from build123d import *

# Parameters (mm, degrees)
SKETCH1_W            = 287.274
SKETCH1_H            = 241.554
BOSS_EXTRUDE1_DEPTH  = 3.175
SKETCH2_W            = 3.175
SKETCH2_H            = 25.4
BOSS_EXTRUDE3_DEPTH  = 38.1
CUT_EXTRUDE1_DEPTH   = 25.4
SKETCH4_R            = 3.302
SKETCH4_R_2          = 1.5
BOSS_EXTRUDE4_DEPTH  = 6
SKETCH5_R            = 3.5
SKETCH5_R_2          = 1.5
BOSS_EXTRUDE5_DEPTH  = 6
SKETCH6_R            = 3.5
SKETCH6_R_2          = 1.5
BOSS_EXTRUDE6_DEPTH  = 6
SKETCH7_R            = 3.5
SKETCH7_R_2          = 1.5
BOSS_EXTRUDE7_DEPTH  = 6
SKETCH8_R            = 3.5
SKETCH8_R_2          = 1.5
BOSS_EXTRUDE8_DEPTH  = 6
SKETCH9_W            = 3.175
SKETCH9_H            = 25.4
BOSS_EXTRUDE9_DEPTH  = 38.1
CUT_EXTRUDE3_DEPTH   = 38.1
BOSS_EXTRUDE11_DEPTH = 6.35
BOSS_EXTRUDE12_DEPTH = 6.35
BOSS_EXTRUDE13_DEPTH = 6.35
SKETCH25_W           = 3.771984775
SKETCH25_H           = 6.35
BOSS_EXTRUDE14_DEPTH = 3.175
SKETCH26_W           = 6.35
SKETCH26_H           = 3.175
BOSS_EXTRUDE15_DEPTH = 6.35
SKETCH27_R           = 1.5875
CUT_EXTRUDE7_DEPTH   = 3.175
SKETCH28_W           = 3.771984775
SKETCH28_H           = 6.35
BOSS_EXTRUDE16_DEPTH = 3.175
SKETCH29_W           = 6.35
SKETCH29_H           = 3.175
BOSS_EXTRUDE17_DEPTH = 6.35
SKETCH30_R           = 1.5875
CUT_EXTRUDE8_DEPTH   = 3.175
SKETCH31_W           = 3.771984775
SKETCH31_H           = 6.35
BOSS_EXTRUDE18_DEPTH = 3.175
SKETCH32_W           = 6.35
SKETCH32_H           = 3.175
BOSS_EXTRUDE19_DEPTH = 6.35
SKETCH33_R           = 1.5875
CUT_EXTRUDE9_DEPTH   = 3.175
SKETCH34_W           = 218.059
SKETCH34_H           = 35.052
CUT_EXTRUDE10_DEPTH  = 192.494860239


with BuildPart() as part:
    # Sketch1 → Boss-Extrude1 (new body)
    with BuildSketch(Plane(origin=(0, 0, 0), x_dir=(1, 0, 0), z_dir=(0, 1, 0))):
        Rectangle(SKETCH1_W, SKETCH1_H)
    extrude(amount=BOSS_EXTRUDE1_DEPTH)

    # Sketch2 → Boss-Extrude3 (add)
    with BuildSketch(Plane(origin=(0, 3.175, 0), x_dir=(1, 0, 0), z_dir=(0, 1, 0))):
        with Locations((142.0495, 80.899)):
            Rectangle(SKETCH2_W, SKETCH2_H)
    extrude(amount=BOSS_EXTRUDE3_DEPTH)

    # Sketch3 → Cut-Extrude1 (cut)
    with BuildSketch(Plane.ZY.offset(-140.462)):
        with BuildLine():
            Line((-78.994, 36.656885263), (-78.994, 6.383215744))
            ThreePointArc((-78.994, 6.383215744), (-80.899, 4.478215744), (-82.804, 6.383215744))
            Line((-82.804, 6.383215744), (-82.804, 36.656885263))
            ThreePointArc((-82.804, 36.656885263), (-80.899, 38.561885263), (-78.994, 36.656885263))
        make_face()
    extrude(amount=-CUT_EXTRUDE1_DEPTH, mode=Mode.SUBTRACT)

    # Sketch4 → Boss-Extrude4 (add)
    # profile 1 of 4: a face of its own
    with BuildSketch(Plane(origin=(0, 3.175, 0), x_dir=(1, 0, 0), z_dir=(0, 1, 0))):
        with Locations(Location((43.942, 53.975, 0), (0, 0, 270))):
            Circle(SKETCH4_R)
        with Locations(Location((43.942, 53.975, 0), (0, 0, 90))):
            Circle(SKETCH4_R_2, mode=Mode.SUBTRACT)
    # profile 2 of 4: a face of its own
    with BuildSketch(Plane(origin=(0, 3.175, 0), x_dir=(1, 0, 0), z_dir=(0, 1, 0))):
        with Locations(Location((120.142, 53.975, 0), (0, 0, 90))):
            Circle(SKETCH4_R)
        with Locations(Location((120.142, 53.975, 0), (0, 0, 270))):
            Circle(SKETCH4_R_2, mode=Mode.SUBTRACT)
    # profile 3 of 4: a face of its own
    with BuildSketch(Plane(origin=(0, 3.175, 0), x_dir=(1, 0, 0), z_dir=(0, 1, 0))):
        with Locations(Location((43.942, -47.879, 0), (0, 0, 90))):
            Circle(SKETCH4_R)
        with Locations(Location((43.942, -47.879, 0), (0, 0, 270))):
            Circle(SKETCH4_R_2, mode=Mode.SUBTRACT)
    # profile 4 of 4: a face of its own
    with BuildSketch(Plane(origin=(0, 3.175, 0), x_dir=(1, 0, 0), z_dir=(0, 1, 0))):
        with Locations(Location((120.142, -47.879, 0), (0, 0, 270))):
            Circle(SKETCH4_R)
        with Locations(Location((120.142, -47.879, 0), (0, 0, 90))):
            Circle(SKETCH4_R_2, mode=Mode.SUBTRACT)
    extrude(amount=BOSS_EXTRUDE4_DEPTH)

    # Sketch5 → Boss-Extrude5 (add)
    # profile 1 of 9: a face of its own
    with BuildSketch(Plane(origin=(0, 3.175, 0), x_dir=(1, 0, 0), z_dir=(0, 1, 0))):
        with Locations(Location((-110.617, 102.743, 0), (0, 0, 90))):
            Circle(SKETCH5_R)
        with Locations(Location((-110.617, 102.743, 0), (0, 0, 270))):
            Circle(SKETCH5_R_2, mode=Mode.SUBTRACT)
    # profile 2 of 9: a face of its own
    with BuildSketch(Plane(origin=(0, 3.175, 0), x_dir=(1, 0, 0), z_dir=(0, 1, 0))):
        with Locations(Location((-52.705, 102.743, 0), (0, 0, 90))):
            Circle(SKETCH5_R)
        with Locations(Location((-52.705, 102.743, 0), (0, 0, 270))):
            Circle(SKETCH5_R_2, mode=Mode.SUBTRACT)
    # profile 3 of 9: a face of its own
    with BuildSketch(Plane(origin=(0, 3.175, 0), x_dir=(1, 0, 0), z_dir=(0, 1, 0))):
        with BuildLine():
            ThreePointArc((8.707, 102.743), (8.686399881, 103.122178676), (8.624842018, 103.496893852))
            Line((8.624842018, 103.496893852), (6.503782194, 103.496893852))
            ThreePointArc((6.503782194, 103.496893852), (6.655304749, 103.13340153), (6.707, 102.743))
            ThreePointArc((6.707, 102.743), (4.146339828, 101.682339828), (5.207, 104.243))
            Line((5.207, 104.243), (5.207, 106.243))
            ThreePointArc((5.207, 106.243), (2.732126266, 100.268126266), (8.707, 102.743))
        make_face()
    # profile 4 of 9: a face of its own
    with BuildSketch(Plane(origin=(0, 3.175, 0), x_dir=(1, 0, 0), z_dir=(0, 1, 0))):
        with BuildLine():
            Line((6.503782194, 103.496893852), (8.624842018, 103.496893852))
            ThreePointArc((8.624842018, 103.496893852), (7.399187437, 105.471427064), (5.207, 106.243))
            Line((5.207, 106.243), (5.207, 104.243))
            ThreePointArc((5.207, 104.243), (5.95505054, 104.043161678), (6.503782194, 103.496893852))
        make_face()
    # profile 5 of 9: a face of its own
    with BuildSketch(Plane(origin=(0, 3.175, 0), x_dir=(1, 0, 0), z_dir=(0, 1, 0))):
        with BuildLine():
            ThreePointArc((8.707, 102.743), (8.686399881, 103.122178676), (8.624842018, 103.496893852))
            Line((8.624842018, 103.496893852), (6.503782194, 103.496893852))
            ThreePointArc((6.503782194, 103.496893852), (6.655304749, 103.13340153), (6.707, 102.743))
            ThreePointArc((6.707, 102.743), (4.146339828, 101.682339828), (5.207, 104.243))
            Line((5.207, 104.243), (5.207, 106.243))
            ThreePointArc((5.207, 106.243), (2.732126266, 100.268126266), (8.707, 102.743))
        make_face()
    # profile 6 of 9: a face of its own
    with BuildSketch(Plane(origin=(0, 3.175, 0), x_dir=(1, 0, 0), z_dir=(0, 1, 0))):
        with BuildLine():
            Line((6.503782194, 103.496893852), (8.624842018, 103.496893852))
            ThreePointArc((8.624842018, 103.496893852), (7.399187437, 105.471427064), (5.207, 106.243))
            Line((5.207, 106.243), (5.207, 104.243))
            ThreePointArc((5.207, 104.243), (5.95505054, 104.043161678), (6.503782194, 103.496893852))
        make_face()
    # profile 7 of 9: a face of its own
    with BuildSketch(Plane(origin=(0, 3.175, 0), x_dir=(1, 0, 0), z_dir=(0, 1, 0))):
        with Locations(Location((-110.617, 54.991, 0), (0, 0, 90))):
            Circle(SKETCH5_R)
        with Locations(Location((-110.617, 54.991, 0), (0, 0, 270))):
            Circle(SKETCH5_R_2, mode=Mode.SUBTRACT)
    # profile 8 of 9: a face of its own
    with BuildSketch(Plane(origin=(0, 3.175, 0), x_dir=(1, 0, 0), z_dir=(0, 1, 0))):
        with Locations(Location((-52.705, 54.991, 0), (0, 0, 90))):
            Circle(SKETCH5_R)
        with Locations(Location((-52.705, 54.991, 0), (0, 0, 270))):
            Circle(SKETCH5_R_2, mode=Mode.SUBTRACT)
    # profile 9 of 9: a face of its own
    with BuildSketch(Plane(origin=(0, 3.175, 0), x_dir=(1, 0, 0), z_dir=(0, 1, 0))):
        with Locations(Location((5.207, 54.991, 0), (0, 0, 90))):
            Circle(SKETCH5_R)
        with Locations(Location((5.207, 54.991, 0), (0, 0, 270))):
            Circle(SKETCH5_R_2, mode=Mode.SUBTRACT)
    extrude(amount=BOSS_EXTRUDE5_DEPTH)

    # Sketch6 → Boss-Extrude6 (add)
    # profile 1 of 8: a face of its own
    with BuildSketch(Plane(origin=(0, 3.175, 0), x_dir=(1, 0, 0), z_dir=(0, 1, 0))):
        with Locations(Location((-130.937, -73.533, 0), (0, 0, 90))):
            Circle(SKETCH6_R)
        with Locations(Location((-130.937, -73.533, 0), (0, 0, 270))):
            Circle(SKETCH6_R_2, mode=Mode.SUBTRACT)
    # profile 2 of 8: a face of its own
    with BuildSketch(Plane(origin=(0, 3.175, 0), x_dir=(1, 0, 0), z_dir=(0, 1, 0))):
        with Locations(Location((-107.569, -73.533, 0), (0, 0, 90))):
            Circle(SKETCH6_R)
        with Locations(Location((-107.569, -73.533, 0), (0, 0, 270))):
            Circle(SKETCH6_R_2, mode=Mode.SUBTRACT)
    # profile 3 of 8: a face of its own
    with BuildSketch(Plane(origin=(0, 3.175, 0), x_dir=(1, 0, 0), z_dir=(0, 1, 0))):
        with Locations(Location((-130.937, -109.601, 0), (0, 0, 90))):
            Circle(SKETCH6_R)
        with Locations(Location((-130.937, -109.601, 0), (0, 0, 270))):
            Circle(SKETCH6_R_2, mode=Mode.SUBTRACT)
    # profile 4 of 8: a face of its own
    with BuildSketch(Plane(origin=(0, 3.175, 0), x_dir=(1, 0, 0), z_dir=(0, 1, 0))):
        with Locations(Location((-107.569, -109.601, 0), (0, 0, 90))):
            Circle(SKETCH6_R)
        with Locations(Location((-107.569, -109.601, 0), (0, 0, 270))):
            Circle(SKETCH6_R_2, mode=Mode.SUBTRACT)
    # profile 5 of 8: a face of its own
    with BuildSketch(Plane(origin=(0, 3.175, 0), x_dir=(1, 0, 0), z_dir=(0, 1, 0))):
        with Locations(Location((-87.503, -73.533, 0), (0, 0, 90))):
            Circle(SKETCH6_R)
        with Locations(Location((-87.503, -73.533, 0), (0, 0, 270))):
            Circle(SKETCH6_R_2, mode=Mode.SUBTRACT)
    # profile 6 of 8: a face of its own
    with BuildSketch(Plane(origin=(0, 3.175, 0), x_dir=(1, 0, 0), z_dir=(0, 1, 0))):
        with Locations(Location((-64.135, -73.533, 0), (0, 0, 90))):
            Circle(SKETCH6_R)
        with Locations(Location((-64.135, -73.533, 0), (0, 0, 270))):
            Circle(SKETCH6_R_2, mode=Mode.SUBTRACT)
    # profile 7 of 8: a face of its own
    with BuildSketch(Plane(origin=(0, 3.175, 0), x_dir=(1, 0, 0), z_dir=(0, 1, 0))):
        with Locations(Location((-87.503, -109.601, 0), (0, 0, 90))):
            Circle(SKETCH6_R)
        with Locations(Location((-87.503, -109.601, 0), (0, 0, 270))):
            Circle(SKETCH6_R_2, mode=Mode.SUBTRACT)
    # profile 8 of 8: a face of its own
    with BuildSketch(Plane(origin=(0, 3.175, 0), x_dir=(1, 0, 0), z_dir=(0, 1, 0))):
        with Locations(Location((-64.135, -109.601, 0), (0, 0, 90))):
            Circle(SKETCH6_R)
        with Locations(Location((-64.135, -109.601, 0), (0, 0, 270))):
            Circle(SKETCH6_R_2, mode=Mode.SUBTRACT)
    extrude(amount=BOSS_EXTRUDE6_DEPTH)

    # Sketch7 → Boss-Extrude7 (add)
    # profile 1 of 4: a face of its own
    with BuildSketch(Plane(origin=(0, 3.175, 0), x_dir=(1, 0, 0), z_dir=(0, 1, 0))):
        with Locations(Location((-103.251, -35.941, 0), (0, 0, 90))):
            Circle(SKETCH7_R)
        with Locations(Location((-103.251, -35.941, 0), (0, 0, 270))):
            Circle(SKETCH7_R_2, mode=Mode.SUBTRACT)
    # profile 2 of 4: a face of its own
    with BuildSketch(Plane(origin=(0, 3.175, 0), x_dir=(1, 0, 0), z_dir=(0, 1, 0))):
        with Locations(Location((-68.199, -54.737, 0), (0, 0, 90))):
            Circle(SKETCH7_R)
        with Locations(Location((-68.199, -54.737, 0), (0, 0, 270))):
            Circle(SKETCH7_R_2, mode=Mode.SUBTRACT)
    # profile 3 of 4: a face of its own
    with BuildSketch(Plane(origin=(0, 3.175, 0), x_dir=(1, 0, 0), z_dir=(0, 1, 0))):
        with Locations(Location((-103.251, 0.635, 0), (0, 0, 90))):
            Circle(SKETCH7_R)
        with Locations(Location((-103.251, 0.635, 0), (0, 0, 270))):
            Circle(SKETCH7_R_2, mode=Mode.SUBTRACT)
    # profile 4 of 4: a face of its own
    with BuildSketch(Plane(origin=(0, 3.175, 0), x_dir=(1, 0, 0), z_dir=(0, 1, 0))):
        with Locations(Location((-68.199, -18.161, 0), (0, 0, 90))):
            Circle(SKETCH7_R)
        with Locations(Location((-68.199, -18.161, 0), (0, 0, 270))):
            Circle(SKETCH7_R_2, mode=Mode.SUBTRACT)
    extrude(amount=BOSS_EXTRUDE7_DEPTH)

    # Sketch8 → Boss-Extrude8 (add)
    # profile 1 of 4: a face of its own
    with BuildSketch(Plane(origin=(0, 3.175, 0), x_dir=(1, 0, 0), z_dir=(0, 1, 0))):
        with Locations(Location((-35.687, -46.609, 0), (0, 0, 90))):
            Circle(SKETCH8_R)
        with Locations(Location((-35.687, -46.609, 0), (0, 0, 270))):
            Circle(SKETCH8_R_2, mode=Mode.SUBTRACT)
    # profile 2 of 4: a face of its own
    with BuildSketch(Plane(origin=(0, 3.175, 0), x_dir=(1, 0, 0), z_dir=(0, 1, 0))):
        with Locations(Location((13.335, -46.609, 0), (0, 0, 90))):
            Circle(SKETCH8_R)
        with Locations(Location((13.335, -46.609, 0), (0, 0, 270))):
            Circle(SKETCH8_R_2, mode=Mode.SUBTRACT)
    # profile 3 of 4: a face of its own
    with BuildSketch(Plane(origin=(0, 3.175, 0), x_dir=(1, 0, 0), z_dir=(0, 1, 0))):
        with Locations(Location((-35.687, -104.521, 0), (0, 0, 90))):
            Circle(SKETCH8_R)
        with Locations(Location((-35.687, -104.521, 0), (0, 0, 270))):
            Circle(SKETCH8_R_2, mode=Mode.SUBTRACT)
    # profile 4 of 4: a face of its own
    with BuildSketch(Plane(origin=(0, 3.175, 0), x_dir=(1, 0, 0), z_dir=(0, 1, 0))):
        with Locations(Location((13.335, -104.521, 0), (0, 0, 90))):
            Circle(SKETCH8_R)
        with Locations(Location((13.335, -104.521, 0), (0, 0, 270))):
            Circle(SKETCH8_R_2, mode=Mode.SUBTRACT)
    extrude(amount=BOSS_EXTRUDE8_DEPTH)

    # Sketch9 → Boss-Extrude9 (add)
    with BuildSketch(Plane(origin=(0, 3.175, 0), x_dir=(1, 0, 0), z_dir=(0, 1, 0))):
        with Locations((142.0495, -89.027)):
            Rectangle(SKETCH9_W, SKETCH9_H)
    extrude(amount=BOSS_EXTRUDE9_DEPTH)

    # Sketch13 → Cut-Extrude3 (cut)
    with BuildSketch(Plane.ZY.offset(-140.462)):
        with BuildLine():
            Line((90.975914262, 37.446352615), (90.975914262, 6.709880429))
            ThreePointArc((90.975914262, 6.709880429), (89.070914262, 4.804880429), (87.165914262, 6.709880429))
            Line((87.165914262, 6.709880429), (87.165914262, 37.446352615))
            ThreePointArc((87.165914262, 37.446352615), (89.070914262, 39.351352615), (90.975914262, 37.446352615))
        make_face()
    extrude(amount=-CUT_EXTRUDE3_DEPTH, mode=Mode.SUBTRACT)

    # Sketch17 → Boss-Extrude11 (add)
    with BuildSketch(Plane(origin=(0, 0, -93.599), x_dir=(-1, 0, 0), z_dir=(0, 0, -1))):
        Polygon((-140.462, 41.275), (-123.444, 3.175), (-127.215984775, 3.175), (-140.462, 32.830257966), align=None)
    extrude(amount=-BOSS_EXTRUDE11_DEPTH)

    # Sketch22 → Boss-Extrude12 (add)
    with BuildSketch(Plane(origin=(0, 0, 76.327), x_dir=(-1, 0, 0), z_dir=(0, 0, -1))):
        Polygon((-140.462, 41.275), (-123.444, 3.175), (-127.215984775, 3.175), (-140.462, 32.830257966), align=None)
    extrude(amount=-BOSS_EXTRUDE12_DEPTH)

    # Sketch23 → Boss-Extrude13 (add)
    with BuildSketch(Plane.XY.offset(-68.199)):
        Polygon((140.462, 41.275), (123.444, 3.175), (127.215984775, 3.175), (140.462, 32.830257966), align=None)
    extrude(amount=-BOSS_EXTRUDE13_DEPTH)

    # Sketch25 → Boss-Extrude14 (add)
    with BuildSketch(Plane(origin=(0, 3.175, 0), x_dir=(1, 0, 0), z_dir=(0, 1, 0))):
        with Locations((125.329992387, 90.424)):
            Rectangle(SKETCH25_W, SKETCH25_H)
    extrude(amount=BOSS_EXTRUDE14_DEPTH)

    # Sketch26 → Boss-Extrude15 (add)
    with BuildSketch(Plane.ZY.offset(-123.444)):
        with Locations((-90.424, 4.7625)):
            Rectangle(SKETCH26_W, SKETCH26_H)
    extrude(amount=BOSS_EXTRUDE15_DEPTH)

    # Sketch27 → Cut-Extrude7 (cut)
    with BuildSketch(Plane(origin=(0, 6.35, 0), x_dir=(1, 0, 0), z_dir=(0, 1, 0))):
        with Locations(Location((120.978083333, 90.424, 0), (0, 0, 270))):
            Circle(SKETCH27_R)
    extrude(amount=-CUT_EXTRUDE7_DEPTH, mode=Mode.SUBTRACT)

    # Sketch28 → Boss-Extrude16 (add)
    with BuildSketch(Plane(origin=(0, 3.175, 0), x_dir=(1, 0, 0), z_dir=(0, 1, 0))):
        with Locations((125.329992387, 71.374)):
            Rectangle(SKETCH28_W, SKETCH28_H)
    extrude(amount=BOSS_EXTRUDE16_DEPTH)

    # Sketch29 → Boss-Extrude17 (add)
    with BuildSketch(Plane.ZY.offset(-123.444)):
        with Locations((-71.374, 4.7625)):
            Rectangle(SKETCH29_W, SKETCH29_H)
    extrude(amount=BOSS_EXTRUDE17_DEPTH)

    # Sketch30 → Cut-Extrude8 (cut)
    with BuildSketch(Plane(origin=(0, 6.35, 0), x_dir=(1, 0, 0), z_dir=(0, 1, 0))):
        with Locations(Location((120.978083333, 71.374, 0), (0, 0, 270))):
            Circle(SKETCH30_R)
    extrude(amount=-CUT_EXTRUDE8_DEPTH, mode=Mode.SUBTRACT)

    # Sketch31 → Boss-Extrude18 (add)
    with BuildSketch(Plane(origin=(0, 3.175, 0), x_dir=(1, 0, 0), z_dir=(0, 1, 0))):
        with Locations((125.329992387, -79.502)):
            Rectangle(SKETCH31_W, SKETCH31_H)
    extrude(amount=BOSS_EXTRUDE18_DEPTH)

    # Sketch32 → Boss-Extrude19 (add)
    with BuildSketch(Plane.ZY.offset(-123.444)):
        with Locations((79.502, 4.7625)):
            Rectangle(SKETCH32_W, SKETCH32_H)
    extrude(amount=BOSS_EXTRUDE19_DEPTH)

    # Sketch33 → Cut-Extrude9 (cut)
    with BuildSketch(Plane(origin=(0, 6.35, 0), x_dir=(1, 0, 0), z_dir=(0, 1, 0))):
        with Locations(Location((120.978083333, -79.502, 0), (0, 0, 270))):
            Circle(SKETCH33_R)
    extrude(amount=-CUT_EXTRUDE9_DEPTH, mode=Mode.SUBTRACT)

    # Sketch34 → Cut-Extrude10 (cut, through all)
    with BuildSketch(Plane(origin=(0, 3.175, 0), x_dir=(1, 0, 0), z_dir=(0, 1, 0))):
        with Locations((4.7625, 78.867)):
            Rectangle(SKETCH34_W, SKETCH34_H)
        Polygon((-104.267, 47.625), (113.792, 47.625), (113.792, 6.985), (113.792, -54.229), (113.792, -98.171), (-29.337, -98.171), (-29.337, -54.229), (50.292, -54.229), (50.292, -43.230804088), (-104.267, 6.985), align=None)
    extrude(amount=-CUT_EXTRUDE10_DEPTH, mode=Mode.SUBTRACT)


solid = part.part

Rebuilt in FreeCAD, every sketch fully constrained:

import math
import FreeCAD as App
import Part
import Sketcher

V = App.Vector
Q = App.Units.Quantity

doc = App.newDocument("Part")
body = doc.addObject("PartDesign::Body", "Body")

# Sketch on XZ plane
sketch1 = body.newObject("Sketcher::SketchObject", "Sketch")
sketch1.AttachmentSupport = (doc.getObject("XZ_Plane"), [""])
sketch1.MapMode = "FlatFace"
sketch1.addGeometry([
    Part.LineSegment(V(-144, -121, 0), V(-144, 121, 0)),
    Part.LineSegment(V(-144, 121, 0), V(144, 121, 0)),
    Part.LineSegment(V(144, 121, 0), V(144, -121, 0)),
    Part.LineSegment(V(144, -121, 0), V(-144, -121, 0)),
], False)
sketch1.addConstraint([
    Sketcher.Constraint("Coincident", 0, 2, 1, 1),
    Sketcher.Constraint("Coincident", 1, 2, 2, 1),
    Sketcher.Constraint("Coincident", 2, 2, 3, 1),
    Sketcher.Constraint("Coincident", 3, 2, 0, 1),
    Sketcher.Constraint("Vertical", 0),
    Sketcher.Constraint("Horizontal", 1),
    Sketcher.Constraint("Vertical", 2),
    Sketcher.Constraint("Horizontal", 3),
    Sketcher.Constraint("Symmetric", 0, 2, 2, 2, -1, 1),
    Sketcher.Constraint("DistanceX", 1, 1, 1, 2, Q("11.31 in")),
    Sketcher.Constraint("DistanceY", 0, 1, 0, 2, Q("9.51 in")),
])
pad1 = body.newObject("PartDesign::Pad", "Pad")
pad1.Profile = sketch1
pad1.Length = Q("0.125 in")
pad1.Reversed = True

# Sketch on XZ plane
sketch2 = body.newObject("Sketcher::SketchObject", "Sketch001")
sketch2.AttachmentSupport = (doc.getObject("XZ_Plane"), [""])
sketch2.MapMode = "FlatFace"
sketch2.AttachmentOffset = App.Placement(V(0, 0, -0.125 * 25.4), App.Rotation())
sketch2.addGeometry([
    Part.LineSegment(V(140.5, -93.6, 0), V(140.5, -68.2, 0)),
    Part.LineSegment(V(140.5, -68.2, 0), V(143.6, -68.2, 0)),
    Part.LineSegment(V(143.6, -68.2, 0), V(143.6, -93.6, 0)),
    Part.LineSegment(V(143.6, -93.6, 0), V(140.5, -93.6, 0)),
], False)
sketch2.addConstraint([
    Sketcher.Constraint("Coincident", 0, 2, 1, 1),
    Sketcher.Constraint("Coincident", 1, 2, 2, 1),
    Sketcher.Constraint("Coincident", 2, 2, 3, 1),
    Sketcher.Constraint("Coincident", 3, 2, 0, 1),
    Sketcher.Constraint("Vertical", 0),
    Sketcher.Constraint("Horizontal", 1),
    Sketcher.Constraint("Vertical", 2),
    Sketcher.Constraint("Horizontal", 3),
    Sketcher.Constraint("DistanceY", 0, 1, 0, 2, Q("1 in")),
    Sketcher.Constraint("DistanceX", 1, 1, 1, 2, Q("0.125 in")),
    Sketcher.Constraint("DistanceX", -1, 1, 0, 2, Q("5.53 in")),
    Sketcher.Constraint("DistanceY", 0, 2, -1, 1, Q("2.685 in")),
])
pad2 = body.newObject("PartDesign::Pad", "Pad001")
pad2.Profile = sketch2
pad2.Length = Q("1.5 in")
pad2.Reversed = True

# Sketch on YZ plane
sketch3 = body.newObject("Sketcher::SketchObject", "Sketch002")
sketch3.AttachmentSupport = (doc.getObject("YZ_Plane"), [""])
sketch3.MapMode = "FlatFace"
sketch3.AttachmentOffset = App.Placement(V(0, 0, 5.53 * 25.4), App.Rotation())
sketch3.addGeometry([
    Part.LineSegment(V(6.4, -79, 0), V(36.7, -79, 0)),
    Part.ArcOfCircle(Part.Circle(V(36.7, -80.9, 0), V(0, 0, 1), 1.9), math.radians(-90), math.radians(90)),
    Part.LineSegment(V(36.7, -82.8, 0), V(6.4, -82.8, 0)),
    Part.ArcOfCircle(Part.Circle(V(6.4, -80.9, 0), V(0, 0, 1), 1.9), math.radians(90), math.radians(270)),
], False)
sketch3.addConstraint([
    Sketcher.Constraint("Tangent", 0, 2, 1, 2),
    Sketcher.Constraint("Tangent", 1, 1, 2, 1),
    Sketcher.Constraint("Tangent", 2, 2, 3, 2),
    Sketcher.Constraint("Tangent", 3, 1, 0, 1),
    Sketcher.Constraint("Horizontal", 0),
    Sketcher.Constraint("Horizontal", 2),
    Sketcher.Constraint("Radius", 1, Q("0.075 in")),
    Sketcher.Constraint("DistanceY", 0, 2, -1, 1, Q("3.11 in")),
    Sketcher.Constraint("DistanceX", 0, 1, 0, 2, 30.27367),
    Sketcher.Constraint("DistanceX", -1, 1, 1, 3, 36.656885),
])
pocket1 = body.newObject("PartDesign::Pocket", "Pocket")
pocket1.Profile = sketch3
pocket1.Length = Q("1 in")
pocket1.Reversed = True

# Sketch on XZ plane
sketch4 = body.newObject("Sketcher::SketchObject", "Sketch003")
sketch4.AttachmentSupport = (doc.getObject("XZ_Plane"), [""])
sketch4.MapMode = "FlatFace"
sketch4.AttachmentOffset = App.Placement(V(0, 0, -0.125 * 25.4), App.Rotation())
sketch4.addGeometry([
    Part.Circle(V(43.9, -54, 0), V(0, 0, 1), 3.3),  # 0
    Part.Circle(V(43.9, -54, 0), V(0, 0, 1), 1.5),  # 1
    Part.Circle(V(120.1, -54, 0), V(0, 0, 1), 3.3),  # 2
    Part.Circle(V(120.1, -54, 0), V(0, 0, 1), 1.5),  # 3
    Part.Circle(V(43.9, 47.9, 0), V(0, 0, 1), 3.3),  # 4
    Part.Circle(V(43.9, 47.9, 0), V(0, 0, 1), 1.5),  # 5
    Part.Circle(V(120.1, 47.9, 0), V(0, 0, 1), 3.3),  # 6
    Part.Circle(V(120.1, 47.9, 0), V(0, 0, 1), 1.5),  # 7
], False)
sketch4.addConstraint([
    Sketcher.Constraint("Coincident", 1, 3, 0, 3),
    Sketcher.Constraint("Coincident", 3, 3, 2, 3),
    Sketcher.Constraint("Coincident", 5, 3, 4, 3),
    Sketcher.Constraint("Coincident", 7, 3, 6, 3),
    Sketcher.Constraint("Equal", 0, 2),
    Sketcher.Constraint("Equal", 1, 3),
    Sketcher.Constraint("Equal", 2, 4),
    Sketcher.Constraint("Equal", 3, 5),
    Sketcher.Constraint("Equal", 4, 6),
    Sketcher.Constraint("Equal", 5, 7),
    Sketcher.Constraint("Horizontal", 1, 3, 2, 3),
    Sketcher.Constraint("Horizontal", 5, 3, 6, 3),
    Sketcher.Constraint("Vertical", 1, 3, 4, 3),
    Sketcher.Constraint("Vertical", 3, 3, 6, 3),
    Sketcher.Constraint("Diameter", 0, Q("0.26 in")),
    Sketcher.Constraint("DistanceX", 0, 3, 2, 3, Q("3 in")),
    Sketcher.Constraint("Diameter", 1, 3.0),
    Sketcher.Constraint("DistanceX", -1, 1, 0, 3, Q("1.73 in")),
    Sketcher.Constraint("DistanceY", 0, 3, 4, 3, Q("4.01 in")),
    Sketcher.Constraint("DistanceY", 0, 3, -1, 1, Q("2.125 in")),
])
pad3 = body.newObject("PartDesign::Pad", "Pad002")
pad3.Profile = sketch4
pad3.Length = 6
pad3.Reversed = True

# Sketch on XZ plane
sketch5 = body.newObject("Sketcher::SketchObject", "Sketch004")
sketch5.AttachmentSupport = (doc.getObject("XZ_Plane"), [""])
sketch5.MapMode = "FlatFace"
sketch5.AttachmentOffset = App.Placement(V(0, 0, -0.125 * 25.4), App.Rotation())
sketch5.addGeometry([
    Part.Circle(V(-110.6, -102.7, 0), V(0, 0, 1), 3.5),  # 0
    Part.Circle(V(-110.6, -102.7, 0), V(0, 0, 1), 1.5),  # 1
    Part.Circle(V(-52.7, -102.7, 0), V(0, 0, 1), 3.5),  # 2
    Part.Circle(V(-52.7, -102.7, 0), V(0, 0, 1), 1.5),  # 3
    Part.ArcOfCircle(Part.Circle(V(5.2, -102.7, 0), V(0, 0, 1), 3.5), math.radians(-12.44), math.radians(0)),  # 4
    Part.ArcOfCircle(Part.Circle(V(5.2, -102.7, 0), V(0, 0, 1), 3.5), math.radians(-90), math.radians(-12)),  # 5
    Part.ArcOfCircle(Part.Circle(V(5.2, -102.7, 0), V(0, 0, 1), 3.5), math.radians(0), math.radians(270)),  # 6
    Part.ArcOfCircle(Part.Circle(V(5.2, -102.7, 0), V(0, 0, 1), 1.5), math.radians(-30), math.radians(0)),  # 7
    Part.ArcOfCircle(Part.Circle(V(5.2, -102.7, 0), V(0, 0, 1), 1.5), math.radians(0), math.radians(270)),  # 8
    Part.ArcOfCircle(Part.Circle(V(5.2, -102.7, 0), V(0, 0, 1), 1.5), math.radians(-90), math.radians(-30)),  # 9
    Part.Circle(V(-110.6, -55, 0), V(0, 0, 1), 3.5),  # 10
    Part.Circle(V(-110.6, -55, 0), V(0, 0, 1), 1.5),  # 11
    Part.Circle(V(-52.7, -55, 0), V(0, 0, 1), 3.5),  # 12
    Part.Circle(V(-52.7, -55, 0), V(0, 0, 1), 1.5),  # 13
    Part.Circle(V(5.2, -55, 0), V(0, 0, 1), 3.5),  # 14
    Part.Circle(V(5.2, -55, 0), V(0, 0, 1), 1.5),  # 15
], False)
sketch5.addConstraint([
    Sketcher.Constraint("Tangent", 4, 1, 5, 2),
    Sketcher.Constraint("Tangent", 5, 1, 6, 2),
    Sketcher.Constraint("Tangent", 6, 1, 4, 2),
    Sketcher.Constraint("Tangent", 7, 2, 8, 1),
    Sketcher.Constraint("Tangent", 8, 2, 9, 1),
    Sketcher.Constraint("Tangent", 9, 2, 7, 1),
    Sketcher.Constraint("Coincident", 1, 3, 0, 3),
    Sketcher.Constraint("Coincident", 3, 3, 2, 3),
    Sketcher.Constraint("Coincident", 7, 3, 4, 3),
    Sketcher.Constraint("Coincident", 11, 3, 10, 3),
    Sketcher.Constraint("Coincident", 13, 3, 12, 3),
    Sketcher.Constraint("Coincident", 15, 3, 14, 3),
    Sketcher.Constraint("Equal", 0, 2),
    Sketcher.Constraint("Equal", 1, 3),
    Sketcher.Constraint("Equal", 2, 4),
    Sketcher.Constraint("Equal", 3, 7),
    Sketcher.Constraint("Equal", 6, 10),
    Sketcher.Constraint("Equal", 9, 11),
    Sketcher.Constraint("Equal", 10, 12),
    Sketcher.Constraint("Equal", 11, 13),
    Sketcher.Constraint("Equal", 12, 14),
    Sketcher.Constraint("Equal", 13, 15),
    Sketcher.Constraint("Horizontal", 1, 3, 2, 3),
    Sketcher.Constraint("Horizontal", 3, 3, 4, 3),
    Sketcher.Constraint("Horizontal", 11, 3, 12, 3),
    Sketcher.Constraint("Horizontal", 13, 3, 14, 3),
    Sketcher.Constraint("Horizontal", 9, 3, 6, 1),
    Sketcher.Constraint("Horizontal", 6, 1, 7, 2),
    Sketcher.Constraint("Horizontal", 4, 1, 9, 2),
    Sketcher.Constraint("Vertical", 1, 3, 10, 3),
    Sketcher.Constraint("Vertical", 3, 3, 12, 3),
    Sketcher.Constraint("Vertical", 9, 3, 14, 3),
    Sketcher.Constraint("Vertical", 15, 3, 5, 1),
    Sketcher.Constraint("Vertical", 5, 1, 8, 2),
    Sketcher.Constraint("Diameter", 0, 7.0),
    Sketcher.Constraint("Diameter", 1, 3.0),
    Sketcher.Constraint("DistanceX", 0, 3, 2, 3, Q("2.28 in")),
    Sketcher.Constraint("DistanceX", 2, 3, 4, 3, Q("2.28 in")),
    Sketcher.Constraint("DistanceY", 0, 3, 10, 3, Q("1.88 in")),
    Sketcher.Constraint("DistanceX", 0, 3, -1, 1, Q("4.355 in")),
    Sketcher.Constraint("DistanceY", 0, 3, -1, 1, Q("4.045 in")),
    Sketcher.Constraint("DistanceX", -1, 1, 4, 1, 8.624842),
])
pad4 = body.newObject("PartDesign::Pad", "Pad003")
pad4.Profile = sketch5
pad4.Length = 6
pad4.Reversed = True

# Sketch on XZ plane
sketch6 = body.newObject("Sketcher::SketchObject", "Sketch005")
sketch6.AttachmentSupport = (doc.getObject("XZ_Plane"), [""])
sketch6.MapMode = "FlatFace"
sketch6.AttachmentOffset = App.Placement(V(0, 0, -0.125 * 25.4), App.Rotation())
sketch6.addGeometry([
    Part.Circle(V(-130.9, 73.5, 0), V(0, 0, 1), 3.5),  # 0
    Part.Circle(V(-130.9, 73.5, 0), V(0, 0, 1), 1.5),  # 1
    Part.Circle(V(-107.6, 73.5, 0), V(0, 0, 1), 3.5),  # 2
    Part.Circle(V(-107.6, 73.5, 0), V(0, 0, 1), 1.5),  # 3
    Part.Circle(V(-130.9, 109.6, 0), V(0, 0, 1), 3.5),  # 4
    Part.Circle(V(-130.9, 109.6, 0), V(0, 0, 1), 1.5),  # 5
    Part.Circle(V(-107.6, 109.6, 0), V(0, 0, 1), 3.5),  # 6
    Part.Circle(V(-107.6, 109.6, 0), V(0, 0, 1), 1.5),  # 7
    Part.Circle(V(-87.5, 73.5, 0), V(0, 0, 1), 3.5),  # 8
    Part.Circle(V(-87.5, 73.5, 0), V(0, 0, 1), 1.5),  # 9
    Part.Circle(V(-64.1, 73.5, 0), V(0, 0, 1), 3.5),  # 10
    Part.Circle(V(-64.1, 73.5, 0), V(0, 0, 1), 1.5),  # 11
    Part.Circle(V(-87.5, 109.6, 0), V(0, 0, 1), 3.5),  # 12
    Part.Circle(V(-87.5, 109.6, 0), V(0, 0, 1), 1.5),  # 13
    Part.Circle(V(-64.1, 109.6, 0), V(0, 0, 1), 3.5),  # 14
    Part.Circle(V(-64.1, 109.6, 0), V(0, 0, 1), 1.5),  # 15
], False)
sketch6.addConstraint([
    Sketcher.Constraint("Coincident", 1, 3, 0, 3),
    Sketcher.Constraint("Coincident", 3, 3, 2, 3),
    Sketcher.Constraint("Coincident", 5, 3, 4, 3),
    Sketcher.Constraint("Coincident", 7, 3, 6, 3),
    Sketcher.Constraint("Coincident", 9, 3, 8, 3),
    Sketcher.Constraint("Coincident", 11, 3, 10, 3),
    Sketcher.Constraint("Coincident", 13, 3, 12, 3),
    Sketcher.Constraint("Coincident", 15, 3, 14, 3),
    Sketcher.Constraint("Equal", 0, 2),
    Sketcher.Constraint("Equal", 1, 3),
    Sketcher.Constraint("Equal", 2, 4),
    Sketcher.Constraint("Equal", 3, 5),
    Sketcher.Constraint("Equal", 4, 6),
    Sketcher.Constraint("Equal", 5, 7),
    Sketcher.Constraint("Equal", 6, 8),
    Sketcher.Constraint("Equal", 7, 9),
    Sketcher.Constraint("Equal", 8, 10),
    Sketcher.Constraint("Equal", 9, 11),
    Sketcher.Constraint("Equal", 10, 12),
    Sketcher.Constraint("Equal", 11, 13),
    Sketcher.Constraint("Equal", 12, 14),
    Sketcher.Constraint("Equal", 13, 15),
    Sketcher.Constraint("Horizontal", 1, 3, 2, 3),
    Sketcher.Constraint("Horizontal", 5, 3, 6, 3),
    Sketcher.Constraint("Horizontal", 3, 3, 8, 3),
    Sketcher.Constraint("Horizontal", 9, 3, 10, 3),
    Sketcher.Constraint("Horizontal", 7, 3, 12, 3),
    Sketcher.Constraint("Horizontal", 13, 3, 14, 3),
    Sketcher.Constraint("Vertical", 1, 3, 4, 3),
    Sketcher.Constraint("Vertical", 3, 3, 6, 3),
    Sketcher.Constraint("Vertical", 9, 3, 12, 3),
    Sketcher.Constraint("Vertical", 11, 3, 14, 3),
    Sketcher.Constraint("Diameter", 0, 7.0),
    Sketcher.Constraint("Diameter", 1, 3.0),
    Sketcher.Constraint("DistanceX", 0, 3, 2, 3, Q("0.92 in")),
    Sketcher.Constraint("DistanceY", 0, 3, 4, 3, Q("1.42 in")),
    Sketcher.Constraint("DistanceX", 2, 3, 8, 3, Q("0.79 in")),
    Sketcher.Constraint("DistanceX", 8, 3, 10, 3, Q("0.92 in")),
    Sketcher.Constraint("DistanceX", 0, 3, -1, 1, Q("5.155 in")),
    Sketcher.Constraint("DistanceY", -1, 1, 0, 3, Q("2.895 in")),
])
pad5 = body.newObject("PartDesign::Pad", "Pad004")
pad5.Profile = sketch6
pad5.Length = 6
pad5.Reversed = True

# Sketch on XZ plane
sketch7 = body.newObject("Sketcher::SketchObject", "Sketch006")
sketch7.AttachmentSupport = (doc.getObject("XZ_Plane"), [""])
sketch7.MapMode = "FlatFace"
sketch7.AttachmentOffset = App.Placement(V(0, 0, -0.125 * 25.4), App.Rotation())
sketch7.addGeometry([
    Part.Circle(V(-103.3, 35.9, 0), V(0, 0, 1), 3.5),  # 0
    Part.Circle(V(-103.3, 35.9, 0), V(0, 0, 1), 1.5),  # 1
    Part.Circle(V(-68.2, 54.7, 0), V(0, 0, 1), 3.5),  # 2
    Part.Circle(V(-68.2, 54.7, 0), V(0, 0, 1), 1.5),  # 3
    Part.Circle(V(-103.3, -0.6, 0), V(0, 0, 1), 3.5),  # 4
    Part.Circle(V(-103.3, -0.6, 0), V(0, 0, 1), 1.5),  # 5
    Part.Circle(V(-68.2, 18.2, 0), V(0, 0, 1), 3.5),  # 6
    Part.Circle(V(-68.2, 18.2, 0), V(0, 0, 1), 1.5),  # 7
], False)
sketch7.addConstraint([
    Sketcher.Constraint("Coincident", 1, 3, 0, 3),
    Sketcher.Constraint("Coincident", 3, 3, 2, 3),
    Sketcher.Constraint("Coincident", 5, 3, 4, 3),
    Sketcher.Constraint("Coincident", 7, 3, 6, 3),
    Sketcher.Constraint("Equal", 0, 2),
    Sketcher.Constraint("Equal", 1, 3),
    Sketcher.Constraint("Equal", 2, 4),
    Sketcher.Constraint("Equal", 3, 5),
    Sketcher.Constraint("Equal", 4, 6),
    Sketcher.Constraint("Equal", 5, 7),
    Sketcher.Constraint("Vertical", 1, 3, 4, 3),
    Sketcher.Constraint("Vertical", 3, 3, 6, 3),
    Sketcher.Constraint("DistanceY", 6, 3, 0, 3, Q("0.7 in")),
    Sketcher.Constraint("Diameter", 0, 7.0),
    Sketcher.Constraint("Diameter", 1, 3.0),
    Sketcher.Constraint("DistanceX", 0, 3, 2, 3, Q("1.38 in")),
    Sketcher.Constraint("DistanceY", 0, 3, 2, 3, Q("0.74 in")),
    Sketcher.Constraint("DistanceY", 4, 3, 0, 3, Q("1.44 in")),
    Sketcher.Constraint("DistanceX", 0, 3, -1, 1, Q("4.065 in")),
    Sketcher.Constraint("DistanceY", -1, 1, 0, 3, Q("1.415 in")),
])
pad6 = body.newObject("PartDesign::Pad", "Pad005")
pad6.Profile = sketch7
pad6.Length = 6
pad6.Reversed = True

# Sketch on XZ plane
sketch8 = body.newObject("Sketcher::SketchObject", "Sketch007")
sketch8.AttachmentSupport = (doc.getObject("XZ_Plane"), [""])
sketch8.MapMode = "FlatFace"
sketch8.AttachmentOffset = App.Placement(V(0, 0, -0.125 * 25.4), App.Rotation())
sketch8.addGeometry([
    Part.Circle(V(-35.7, 46.6, 0), V(0, 0, 1), 3.5),  # 0
    Part.Circle(V(-35.7, 46.6, 0), V(0, 0, 1), 1.5),  # 1
    Part.Circle(V(13.3, 46.6, 0), V(0, 0, 1), 3.5),  # 2
    Part.Circle(V(13.3, 46.6, 0), V(0, 0, 1), 1.5),  # 3
    Part.Circle(V(-35.7, 104.5, 0), V(0, 0, 1), 3.5),  # 4
    Part.Circle(V(-35.7, 104.5, 0), V(0, 0, 1), 1.5),  # 5
    Part.Circle(V(13.3, 104.5, 0), V(0, 0, 1), 3.5),  # 6
    Part.Circle(V(13.3, 104.5, 0), V(0, 0, 1), 1.5),  # 7
], False)
sketch8.addConstraint([
    Sketcher.Constraint("Coincident", 1, 3, 0, 3),
    Sketcher.Constraint("Coincident", 3, 3, 2, 3),
    Sketcher.Constraint("Coincident", 5, 3, 4, 3),
    Sketcher.Constraint("Coincident", 7, 3, 6, 3),
    Sketcher.Constraint("Equal", 0, 2),
    Sketcher.Constraint("Equal", 1, 3),
    Sketcher.Constraint("Equal", 2, 4),
    Sketcher.Constraint("Equal", 3, 5),
    Sketcher.Constraint("Equal", 4, 6),
    Sketcher.Constraint("Equal", 5, 7),
    Sketcher.Constraint("Horizontal", 1, 3, 2, 3),
    Sketcher.Constraint("Horizontal", 5, 3, 6, 3),
    Sketcher.Constraint("Vertical", 1, 3, 4, 3),
    Sketcher.Constraint("Vertical", 3, 3, 6, 3),
    Sketcher.Constraint("Diameter", 0, 7.0),
    Sketcher.Constraint("Diameter", 1, 3.0),
    Sketcher.Constraint("DistanceX", 0, 3, 2, 3, Q("1.93 in")),
    Sketcher.Constraint("DistanceY", 0, 3, 4, 3, Q("2.28 in")),
    Sketcher.Constraint("DistanceX", 0, 3, -1, 1, Q("1.405 in")),
    Sketcher.Constraint("DistanceY", -1, 1, 0, 3, Q("1.835 in")),
])
pad7 = body.newObject("PartDesign::Pad", "Pad006")
pad7.Profile = sketch8
pad7.Length = 6
pad7.Reversed = True

# Sketch on XZ plane
sketch9 = body.newObject("Sketcher::SketchObject", "Sketch008")
sketch9.AttachmentSupport = (doc.getObject("XZ_Plane"), [""])
sketch9.MapMode = "FlatFace"
sketch9.AttachmentOffset = App.Placement(V(0, 0, -0.125 * 25.4), App.Rotation())
sketch9.addGeometry([
    Part.LineSegment(V(140.5, 76.3, 0), V(140.5, 101.7, 0)),
    Part.LineSegment(V(140.5, 101.7, 0), V(143.6, 101.7, 0)),
    Part.LineSegment(V(143.6, 101.7, 0), V(143.6, 76.3, 0)),
    Part.LineSegment(V(143.6, 76.3, 0), V(140.5, 76.3, 0)),
], False)
sketch9.addConstraint([
    Sketcher.Constraint("Coincident", 0, 2, 1, 1),
    Sketcher.Constraint("Coincident", 1, 2, 2, 1),
    Sketcher.Constraint("Coincident", 2, 2, 3, 1),
    Sketcher.Constraint("Coincident", 3, 2, 0, 1),
    Sketcher.Constraint("Vertical", 0),
    Sketcher.Constraint("Horizontal", 1),
    Sketcher.Constraint("Vertical", 2),
    Sketcher.Constraint("Horizontal", 3),
    Sketcher.Constraint("DistanceY", 0, 1, 0, 2, Q("1 in")),
    Sketcher.Constraint("DistanceX", 1, 1, 1, 2, Q("0.125 in")),
    Sketcher.Constraint("DistanceX", -1, 1, 0, 2, Q("5.53 in")),
    Sketcher.Constraint("DistanceY", -1, 1, 0, 2, Q("4.005 in")),
])
pad8 = body.newObject("PartDesign::Pad", "Pad007")
pad8.Profile = sketch9
pad8.Length = Q("1.5 in")
pad8.Reversed = True

# Sketch on YZ plane
sketch10 = body.newObject("Sketcher::SketchObject", "Sketch009")
sketch10.AttachmentSupport = (doc.getObject("YZ_Plane"), [""])
sketch10.MapMode = "FlatFace"
sketch10.AttachmentOffset = App.Placement(V(0, 0, 5.53 * 25.4), App.Rotation())
sketch10.addGeometry([
    Part.LineSegment(V(6.7, 91, 0), V(37.4, 91, 0)),
    Part.ArcOfCircle(Part.Circle(V(37.4, 89.1, 0), V(0, 0, 1), 1.9), math.radians(-90), math.radians(90)),
    Part.LineSegment(V(37.4, 87.2, 0), V(6.7, 87.2, 0)),
    Part.ArcOfCircle(Part.Circle(V(6.7, 89.1, 0), V(0, 0, 1), 1.9), math.radians(90), math.radians(270)),
], False)
sketch10.addConstraint([
    Sketcher.Constraint("Tangent", 0, 2, 1, 2),
    Sketcher.Constraint("Tangent", 1, 1, 2, 1),
    Sketcher.Constraint("Tangent", 2, 2, 3, 2),
    Sketcher.Constraint("Tangent", 3, 1, 0, 1),
    Sketcher.Constraint("Horizontal", 0),
    Sketcher.Constraint("Horizontal", 2),
    Sketcher.Constraint("Radius", 1, Q("0.075 in")),
    Sketcher.Constraint("DistanceX", 0, 1, 0, 2, 30.736472),
    Sketcher.Constraint("DistanceX", -1, 1, 3, 3, 6.70988),
    Sketcher.Constraint("DistanceY", -1, 1, 1, 3, 89.070914),
])
pocket2 = body.newObject("PartDesign::Pocket", "Pocket001")
pocket2.Profile = sketch10
pocket2.Length = Q("1.5 in")
pocket2.Reversed = True

# Sketch on XY plane
sketch11 = body.newObject("Sketcher::SketchObject", "Sketch010")
sketch11.AttachmentSupport = (doc.getObject("XY_Plane"), [""])
sketch11.MapMode = "FlatFace"
sketch11.AttachmentOffset = App.Placement(V(0, 0, -3.685 * 25.4), App.Rotation())
sketch11.addGeometry([
    Part.LineSegment(V(123.4, 3.2, 0), V(140.5, 41.3, 0)),
    Part.LineSegment(V(140.5, 41.3, 0), V(140.5, 32.8, 0)),
    Part.LineSegment(V(140.5, 32.8, 0), V(127.2, 3.2, 0)),
    Part.LineSegment(V(127.2, 3.2, 0), V(123.4, 3.2, 0)),
], False)
sketch11.addConstraint([
    Sketcher.Constraint("Coincident", 0, 2, 1, 1),
    Sketcher.Constraint("Coincident", 1, 2, 2, 1),
    Sketcher.Constraint("Coincident", 2, 2, 3, 1),
    Sketcher.Constraint("Coincident", 3, 2, 0, 1),
    Sketcher.Constraint("Vertical", 1),
    Sketcher.Constraint("Horizontal", 3),
    Sketcher.Constraint("Parallel", 0, 2),
    Sketcher.Constraint("DistanceY", 2, 2, 0, 2, Q("1.5 in")),
    Sketcher.Constraint("DistanceX", -1, 1, 0, 2, Q("5.53 in")),
    Sketcher.Constraint("DistanceX", -1, 1, 3, 2, Q("4.86 in")),
    Sketcher.Constraint("DistanceY", -1, 1, 0, 2, Q("1.625 in")),
    Sketcher.Constraint("Distance", 2, 32.479089),
])
pad9 = body.newObject("PartDesign::Pad", "Pad008")
pad9.Profile = sketch11
pad9.Length = Q("0.25 in")

# Sketch on XY plane
sketch12 = body.newObject("Sketcher::SketchObject", "Sketch011")
sketch12.AttachmentSupport = (doc.getObject("XY_Plane"), [""])
sketch12.MapMode = "FlatFace"
sketch12.AttachmentOffset = App.Placement(V(0, 0, 3.005 * 25.4), App.Rotation())
sketch12.addGeometry([
    Part.LineSegment(V(123.4, 3.2, 0), V(140.5, 41.3, 0)),
    Part.LineSegment(V(140.5, 41.3, 0), V(140.5, 32.8, 0)),
    Part.LineSegment(V(140.5, 32.8, 0), V(127.2, 3.2, 0)),
    Part.LineSegment(V(127.2, 3.2, 0), V(123.4, 3.2, 0)),
], False)
sketch12.addConstraint([
    Sketcher.Constraint("Coincident", 0, 2, 1, 1),
    Sketcher.Constraint("Coincident", 1, 2, 2, 1),
    Sketcher.Constraint("Coincident", 2, 2, 3, 1),
    Sketcher.Constraint("Coincident", 3, 2, 0, 1),
    Sketcher.Constraint("Vertical", 1),
    Sketcher.Constraint("Horizontal", 3),
    Sketcher.Constraint("Parallel", 0, 2),
    Sketcher.Constraint("DistanceY", 2, 2, 0, 2, Q("1.5 in")),
    Sketcher.Constraint("DistanceX", -1, 1, 0, 2, Q("5.53 in")),
    Sketcher.Constraint("DistanceX", -1, 1, 3, 2, Q("4.86 in")),
    Sketcher.Constraint("DistanceY", -1, 1, 0, 2, Q("1.625 in")),
    Sketcher.Constraint("Distance", 2, 32.479089),
])
pad10 = body.newObject("PartDesign::Pad", "Pad009")
pad10.Profile = sketch12
pad10.Length = Q("0.25 in")

# Sketch on XY plane
sketch13 = body.newObject("Sketcher::SketchObject", "Sketch012")
sketch13.AttachmentSupport = (doc.getObject("XY_Plane"), [""])
sketch13.MapMode = "FlatFace"
sketch13.AttachmentOffset = App.Placement(V(0, 0, -2.685 * 25.4), App.Rotation())
sketch13.addGeometry([
    Part.LineSegment(V(140.5, 41.3, 0), V(123.4, 3.2, 0)),
    Part.LineSegment(V(123.4, 3.2, 0), V(127.2, 3.2, 0)),
    Part.LineSegment(V(127.2, 3.2, 0), V(140.5, 32.8, 0)),
    Part.LineSegment(V(140.5, 32.8, 0), V(140.5, 41.3, 0)),
], False)
sketch13.addConstraint([
    Sketcher.Constraint("Coincident", 0, 2, 1, 1),
    Sketcher.Constraint("Coincident", 1, 2, 2, 1),
    Sketcher.Constraint("Coincident", 2, 2, 3, 1),
    Sketcher.Constraint("Coincident", 3, 2, 0, 1),
    Sketcher.Constraint("Horizontal", 1),
    Sketcher.Constraint("Vertical", 3),
    Sketcher.Constraint("Parallel", 0, 2),
    Sketcher.Constraint("DistanceY", 1, 2, 3, 2, Q("1.5 in")),
    Sketcher.Constraint("DistanceX", -1, 1, 0, 2, Q("4.86 in")),
    Sketcher.Constraint("DistanceX", -1, 1, 2, 2, Q("5.53 in")),
    Sketcher.Constraint("DistanceY", -1, 1, 0, 2, Q("0.125 in")),
    Sketcher.Constraint("Distance", 2, 32.479089),
])
pad11 = body.newObject("PartDesign::Pad", "Pad010")
pad11.Profile = sketch13
pad11.Length = Q("0.25 in")
pad11.Reversed = True

# Sketch on XZ plane
sketch14 = body.newObject("Sketcher::SketchObject", "Sketch013")
sketch14.AttachmentSupport = (doc.getObject("XZ_Plane"), [""])
sketch14.MapMode = "FlatFace"
sketch14.AttachmentOffset = App.Placement(V(0, 0, -0.125 * 25.4), App.Rotation())
sketch14.addGeometry([
    Part.LineSegment(V(123.4, -93.6, 0), V(123.4, -87.2, 0)),
    Part.LineSegment(V(123.4, -87.2, 0), V(127.2, -87.2, 0)),
    Part.LineSegment(V(127.2, -87.2, 0), V(127.2, -93.6, 0)),
    Part.LineSegment(V(127.2, -93.6, 0), V(123.4, -93.6, 0)),
], False)
sketch14.addConstraint([
    Sketcher.Constraint("Coincident", 0, 2, 1, 1),
    Sketcher.Constraint("Coincident", 1, 2, 2, 1),
    Sketcher.Constraint("Coincident", 2, 2, 3, 1),
    Sketcher.Constraint("Coincident", 3, 2, 0, 1),
    Sketcher.Constraint("Vertical", 0),
    Sketcher.Constraint("Horizontal", 1),
    Sketcher.Constraint("Vertical", 2),
    Sketcher.Constraint("Horizontal", 3),
    Sketcher.Constraint("DistanceY", 0, 1, 0, 2, Q("0.25 in")),
    Sketcher.Constraint("DistanceX", -1, 1, 0, 2, Q("4.86 in")),
    Sketcher.Constraint("DistanceY", 0, 2, -1, 1, Q("3.435 in")),
    Sketcher.Constraint("DistanceX", 1, 1, 1, 2, 3.771985),
])
pad12 = body.newObject("PartDesign::Pad", "Pad011")
pad12.Profile = sketch14
pad12.Length = Q("0.125 in")
pad12.Reversed = True

# Sketch on YZ plane
sketch15 = body.newObject("Sketcher::SketchObject", "Sketch014")
sketch15.AttachmentSupport = (doc.getObject("YZ_Plane"), [""])
sketch15.MapMode = "FlatFace"
sketch15.AttachmentOffset = App.Placement(V(0, 0, 4.86 * 25.4), App.Rotation())
sketch15.addGeometry([
    Part.LineSegment(V(6.3, -93.6, 0), V(3.2, -93.6, 0)),
    Part.LineSegment(V(3.2, -93.6, 0), V(3.2, -87.2, 0)),
    Part.LineSegment(V(3.2, -87.2, 0), V(6.3, -87.2, 0)),
    Part.LineSegment(V(6.3, -87.2, 0), V(6.3, -93.6, 0)),
], False)
sketch15.addConstraint([
    Sketcher.Constraint("Coincident", 0, 2, 1, 1),
    Sketcher.Constraint("Coincident", 1, 2, 2, 1),
    Sketcher.Constraint("Coincident", 2, 2, 3, 1),
    Sketcher.Constraint("Coincident", 3, 2, 0, 1),
    Sketcher.Constraint("Horizontal", 0),
    Sketcher.Constraint("Vertical", 1),
    Sketcher.Constraint("Horizontal", 2),
    Sketcher.Constraint("Vertical", 3),
    Sketcher.Constraint("DistanceY", 1, 1, 1, 2, Q("0.25 in")),
    Sketcher.Constraint("DistanceX", 0, 2, 0, 1, Q("0.125 in")),
    Sketcher.Constraint("DistanceX", -1, 1, 2, 2, Q("0.25 in")),
    Sketcher.Constraint("DistanceY", 0, 2, -1, 1, Q("3.685 in")),
])
pad13 = body.newObject("PartDesign::Pad", "Pad012")
pad13.Profile = sketch15
pad13.Length = Q("0.25 in")
pad13.Reversed = True

# Sketch on XZ plane
sketch16 = body.newObject("Sketcher::SketchObject", "Sketch015")
sketch16.AttachmentSupport = (doc.getObject("XZ_Plane"), [""])
sketch16.MapMode = "FlatFace"
sketch16.AttachmentOffset = App.Placement(V(0, 0, -0.25 * 25.4), App.Rotation())
sketch16.addGeometry(Part.Circle(V(121, -90.4, 0), V(0, 0, 1), 1.6), False)
sketch16.addConstraint([
    Sketcher.Constraint("Diameter", 0, Q("0.125 in")),
    Sketcher.Constraint("DistanceY", 0, 3, -1, 1, Q("3.56 in")),
    Sketcher.Constraint("DistanceX", -1, 1, 0, 3, 120.978083),
])
pocket3 = body.newObject("PartDesign::Pocket", "Pocket002")
pocket3.Profile = sketch16
pocket3.Length = Q("0.125 in")
pocket3.Reversed = True

# Sketch on XZ plane
sketch17 = body.newObject("Sketcher::SketchObject", "Sketch016")
sketch17.AttachmentSupport = (doc.getObject("XZ_Plane"), [""])
sketch17.MapMode = "FlatFace"
sketch17.AttachmentOffset = App.Placement(V(0, 0, -0.125 * 25.4), App.Rotation())
sketch17.addGeometry([
    Part.LineSegment(V(123.4, -74.5, 0), V(123.4, -68.2, 0)),
    Part.LineSegment(V(123.4, -68.2, 0), V(127.2, -68.2, 0)),
    Part.LineSegment(V(127.2, -68.2, 0), V(127.2, -74.5, 0)),
    Part.LineSegment(V(127.2, -74.5, 0), V(123.4, -74.5, 0)),
], False)
sketch17.addConstraint([
    Sketcher.Constraint("Coincident", 0, 2, 1, 1),
    Sketcher.Constraint("Coincident", 1, 2, 2, 1),
    Sketcher.Constraint("Coincident", 2, 2, 3, 1),
    Sketcher.Constraint("Coincident", 3, 2, 0, 1),
    Sketcher.Constraint("Vertical", 0),
    Sketcher.Constraint("Horizontal", 1),
    Sketcher.Constraint("Vertical", 2),
    Sketcher.Constraint("Horizontal", 3),
    Sketcher.Constraint("DistanceY", 0, 1, 0, 2, Q("0.25 in")),
    Sketcher.Constraint("DistanceX", -1, 1, 0, 2, Q("4.86 in")),
    Sketcher.Constraint("DistanceY", 0, 2, -1, 1, Q("2.685 in")),
    Sketcher.Constraint("DistanceX", 1, 1, 1, 2, 3.771985),
])
pad14 = body.newObject("PartDesign::Pad", "Pad013")
pad14.Profile = sketch17
pad14.Length = Q("0.125 in")
pad14.Reversed = True

# Sketch on YZ plane
sketch18 = body.newObject("Sketcher::SketchObject", "Sketch017")
sketch18.AttachmentSupport = (doc.getObject("YZ_Plane"), [""])
sketch18.MapMode = "FlatFace"
sketch18.AttachmentOffset = App.Placement(V(0, 0, 4.86 * 25.4), App.Rotation())
sketch18.addGeometry([
    Part.LineSegment(V(6.3, -74.5, 0), V(3.2, -74.5, 0)),
    Part.LineSegment(V(3.2, -74.5, 0), V(3.2, -68.2, 0)),
    Part.LineSegment(V(3.2, -68.2, 0), V(6.3, -68.2, 0)),
    Part.LineSegment(V(6.3, -68.2, 0), V(6.3, -74.5, 0)),
], False)
sketch18.addConstraint([
    Sketcher.Constraint("Coincident", 0, 2, 1, 1),
    Sketcher.Constraint("Coincident", 1, 2, 2, 1),
    Sketcher.Constraint("Coincident", 2, 2, 3, 1),
    Sketcher.Constraint("Coincident", 3, 2, 0, 1),
    Sketcher.Constraint("Horizontal", 0),
    Sketcher.Constraint("Vertical", 1),
    Sketcher.Constraint("Horizontal", 2),
    Sketcher.Constraint("Vertical", 3),
    Sketcher.Constraint("DistanceY", 1, 1, 1, 2, Q("0.25 in")),
    Sketcher.Constraint("DistanceX", 0, 2, 0, 1, Q("0.125 in")),
    Sketcher.Constraint("DistanceX", -1, 1, 2, 2, Q("0.25 in")),
    Sketcher.Constraint("DistanceY", 0, 2, -1, 1, Q("2.935 in")),
])
pad15 = body.newObject("PartDesign::Pad", "Pad014")
pad15.Profile = sketch18
pad15.Length = Q("0.25 in")
pad15.Reversed = True

# Sketch on XZ plane
sketch19 = body.newObject("Sketcher::SketchObject", "Sketch018")
sketch19.AttachmentSupport = (doc.getObject("XZ_Plane"), [""])
sketch19.MapMode = "FlatFace"
sketch19.AttachmentOffset = App.Placement(V(0, 0, -0.25 * 25.4), App.Rotation())
sketch19.addGeometry(Part.Circle(V(121, -71.4, 0), V(0, 0, 1), 1.6), False)
sketch19.addConstraint([
    Sketcher.Constraint("Diameter", 0, Q("0.125 in")),
    Sketcher.Constraint("DistanceY", 0, 3, -1, 1, Q("2.81 in")),
    Sketcher.Constraint("DistanceX", -1, 1, 0, 3, 120.978083),
])
pocket4 = body.newObject("PartDesign::Pocket", "Pocket003")
pocket4.Profile = sketch19
pocket4.Length = Q("0.125 in")
pocket4.Reversed = True

# Sketch on XZ plane
sketch20 = body.newObject("Sketcher::SketchObject", "Sketch019")
sketch20.AttachmentSupport = (doc.getObject("XZ_Plane"), [""])
sketch20.MapMode = "FlatFace"
sketch20.AttachmentOffset = App.Placement(V(0, 0, -0.125 * 25.4), App.Rotation())
sketch20.addGeometry([
    Part.LineSegment(V(123.4, 76.3, 0), V(123.4, 82.7, 0)),
    Part.LineSegment(V(123.4, 82.7, 0), V(127.2, 82.7, 0)),
    Part.LineSegment(V(127.2, 82.7, 0), V(127.2, 76.3, 0)),
    Part.LineSegment(V(127.2, 76.3, 0), V(123.4, 76.3, 0)),
], False)
sketch20.addConstraint([
    Sketcher.Constraint("Coincident", 0, 2, 1, 1),
    Sketcher.Constraint("Coincident", 1, 2, 2, 1),
    Sketcher.Constraint("Coincident", 2, 2, 3, 1),
    Sketcher.Constraint("Coincident", 3, 2, 0, 1),
    Sketcher.Constraint("Vertical", 0),
    Sketcher.Constraint("Horizontal", 1),
    Sketcher.Constraint("Vertical", 2),
    Sketcher.Constraint("Horizontal", 3),
    Sketcher.Constraint("DistanceY", 0, 1, 0, 2, Q("0.25 in")),
    Sketcher.Constraint("DistanceX", -1, 1, 0, 2, Q("4.86 in")),
    Sketcher.Constraint("DistanceY", -1, 1, 0, 2, Q("3.255 in")),
    Sketcher.Constraint("DistanceX", 1, 1, 1, 2, 3.771985),
])
pad16 = body.newObject("PartDesign::Pad", "Pad015")
pad16.Profile = sketch20
pad16.Length = Q("0.125 in")
pad16.Reversed = True

# Sketch on YZ plane
sketch21 = body.newObject("Sketcher::SketchObject", "Sketch020")
sketch21.AttachmentSupport = (doc.getObject("YZ_Plane"), [""])
sketch21.MapMode = "FlatFace"
sketch21.AttachmentOffset = App.Placement(V(0, 0, 4.86 * 25.4), App.Rotation())
sketch21.addGeometry([
    Part.LineSegment(V(6.3, 76.3, 0), V(3.2, 76.3, 0)),
    Part.LineSegment(V(3.2, 76.3, 0), V(3.2, 82.7, 0)),
    Part.LineSegment(V(3.2, 82.7, 0), V(6.3, 82.7, 0)),
    Part.LineSegment(V(6.3, 82.7, 0), V(6.3, 76.3, 0)),
], False)
sketch21.addConstraint([
    Sketcher.Constraint("Coincident", 0, 2, 1, 1),
    Sketcher.Constraint("Coincident", 1, 2, 2, 1),
    Sketcher.Constraint("Coincident", 2, 2, 3, 1),
    Sketcher.Constraint("Coincident", 3, 2, 0, 1),
    Sketcher.Constraint("Horizontal", 0),
    Sketcher.Constraint("Vertical", 1),
    Sketcher.Constraint("Horizontal", 2),
    Sketcher.Constraint("Vertical", 3),
    Sketcher.Constraint("DistanceY", 1, 1, 1, 2, Q("0.25 in")),
    Sketcher.Constraint("DistanceX", 0, 2, 0, 1, Q("0.125 in")),
    Sketcher.Constraint("DistanceX", -1, 1, 2, 2, Q("0.25 in")),
    Sketcher.Constraint("DistanceY", -1, 1, 0, 2, Q("3.005 in")),
])
pad17 = body.newObject("PartDesign::Pad", "Pad016")
pad17.Profile = sketch21
pad17.Length = Q("0.25 in")
pad17.Reversed = True

# Sketch on XZ plane
sketch22 = body.newObject("Sketcher::SketchObject", "Sketch021")
sketch22.AttachmentSupport = (doc.getObject("XZ_Plane"), [""])
sketch22.MapMode = "FlatFace"
sketch22.AttachmentOffset = App.Placement(V(0, 0, -0.25 * 25.4), App.Rotation())
sketch22.addGeometry(Part.Circle(V(121, 79.5, 0), V(0, 0, 1), 1.6), False)
sketch22.addConstraint([
    Sketcher.Constraint("Diameter", 0, Q("0.125 in")),
    Sketcher.Constraint("DistanceY", -1, 1, 0, 3, Q("3.13 in")),
    Sketcher.Constraint("DistanceX", -1, 1, 0, 3, 120.978083),
])
pocket5 = body.newObject("PartDesign::Pocket", "Pocket004")
pocket5.Profile = sketch22
pocket5.Length = Q("0.125 in")
pocket5.Reversed = True

# Sketch on XZ plane
sketch23 = body.newObject("Sketcher::SketchObject", "Sketch022")
sketch23.AttachmentSupport = (doc.getObject("XZ_Plane"), [""])
sketch23.MapMode = "FlatFace"
sketch23.AttachmentOffset = App.Placement(V(0, 0, -0.125 * 25.4), App.Rotation())
sketch23.addGeometry([
    Part.LineSegment(V(-104, -96, 0), V(-104, -61, 0)),  # 0
    Part.LineSegment(V(-104, -61, 0), V(114, -61, 0)),  # 1
    Part.LineSegment(V(114, -61, 0), V(114, -96, 0)),  # 2
    Part.LineSegment(V(114, -96, 0), V(-104, -96, 0)),  # 3
    Part.LineSegment(V(114, -48, 0), V(-104, -48, 0)),  # 4
    Part.LineSegment(V(-104, -48, 0), V(-104, -7, 0)),  # 5
    Part.LineSegment(V(-104, -7, 0), V(50, 43, 0)),  # 6
    Part.LineSegment(V(50, 43, 0), V(50, 54, 0)),  # 7
    Part.LineSegment(V(50, 54, 0), V(-29, 54, 0)),  # 8
    Part.LineSegment(V(-29, 54, 0), V(-29, 98, 0)),  # 9
    Part.LineSegment(V(-29, 98, 0), V(114, 98, 0)),  # 10
    Part.LineSegment(V(114, 98, 0), V(114, -48, 0)),  # 11
], False)
sketch23.addConstraint([
    Sketcher.Constraint("Coincident", 0, 2, 1, 1),
    Sketcher.Constraint("Coincident", 1, 2, 2, 1),
    Sketcher.Constraint("Coincident", 2, 2, 3, 1),
    Sketcher.Constraint("Coincident", 3, 2, 0, 1),
    Sketcher.Constraint("Coincident", 4, 2, 5, 1),
    Sketcher.Constraint("Coincident", 5, 2, 6, 1),
    Sketcher.Constraint("Coincident", 6, 2, 7, 1),
    Sketcher.Constraint("Coincident", 7, 2, 8, 1),
    Sketcher.Constraint("Coincident", 8, 2, 9, 1),
    Sketcher.Constraint("Coincident", 9, 2, 10, 1),
    Sketcher.Constraint("Coincident", 10, 2, 11, 1),
    Sketcher.Constraint("Coincident", 11, 2, 4, 1),
    Sketcher.Constraint("Vertical", 0),
    Sketcher.Constraint("Horizontal", 1),
    Sketcher.Constraint("Vertical", 2),
    Sketcher.Constraint("Horizontal", 3),
    Sketcher.Constraint("Horizontal", 4),
    Sketcher.Constraint("Vertical", 5),
    Sketcher.Constraint("Vertical", 7),
    Sketcher.Constraint("Horizontal", 8),
    Sketcher.Constraint("Vertical", 9),
    Sketcher.Constraint("Horizontal", 10),
    Sketcher.Constraint("Vertical", 11),
    Sketcher.Constraint("Vertical", 3, 2, 4, 2),
    Sketcher.Constraint("Vertical", 2, 2, 10, 2),
    Sketcher.Constraint("DistanceY", 5, 1, 5, 2, Q("1.6 in")),
    Sketcher.Constraint("DistanceY", 0, 1, 0, 2, Q("1.38 in")),
    Sketcher.Constraint("DistanceY", 9, 1, 9, 2, Q("1.73 in")),
    Sketcher.Constraint("DistanceY", 11, 2, 11, 1, Q("5.74 in")),
    Sketcher.Constraint("DistanceX", 6, 2, 1, 2, Q("2.5 in")),
    Sketcher.Constraint("DistanceX", 1, 1, 1, 2, Q("8.585 in")),
    Sketcher.Constraint("DistanceX", 8, 2, 8, 1, Q("3.135 in")),
    Sketcher.Constraint("DistanceY", 7, 1, 7, 2, Q("0.4329998 in")),
    Sketcher.Constraint("DistanceX", -1, 1, 1, 2, Q("4.48 in")),
    Sketcher.Constraint("DistanceY", 0, 2, 4, 2, Q("0.54 in")),
    Sketcher.Constraint("DistanceY", 0, 2, -1, 1, Q("2.415 in")),
])
pocket6 = body.newObject("PartDesign::Pocket", "Pocket005")
pocket6.Profile = sketch23
pocket6.Type = "ThroughAll"
pocket6.Reversed = True

doc.recompute()
